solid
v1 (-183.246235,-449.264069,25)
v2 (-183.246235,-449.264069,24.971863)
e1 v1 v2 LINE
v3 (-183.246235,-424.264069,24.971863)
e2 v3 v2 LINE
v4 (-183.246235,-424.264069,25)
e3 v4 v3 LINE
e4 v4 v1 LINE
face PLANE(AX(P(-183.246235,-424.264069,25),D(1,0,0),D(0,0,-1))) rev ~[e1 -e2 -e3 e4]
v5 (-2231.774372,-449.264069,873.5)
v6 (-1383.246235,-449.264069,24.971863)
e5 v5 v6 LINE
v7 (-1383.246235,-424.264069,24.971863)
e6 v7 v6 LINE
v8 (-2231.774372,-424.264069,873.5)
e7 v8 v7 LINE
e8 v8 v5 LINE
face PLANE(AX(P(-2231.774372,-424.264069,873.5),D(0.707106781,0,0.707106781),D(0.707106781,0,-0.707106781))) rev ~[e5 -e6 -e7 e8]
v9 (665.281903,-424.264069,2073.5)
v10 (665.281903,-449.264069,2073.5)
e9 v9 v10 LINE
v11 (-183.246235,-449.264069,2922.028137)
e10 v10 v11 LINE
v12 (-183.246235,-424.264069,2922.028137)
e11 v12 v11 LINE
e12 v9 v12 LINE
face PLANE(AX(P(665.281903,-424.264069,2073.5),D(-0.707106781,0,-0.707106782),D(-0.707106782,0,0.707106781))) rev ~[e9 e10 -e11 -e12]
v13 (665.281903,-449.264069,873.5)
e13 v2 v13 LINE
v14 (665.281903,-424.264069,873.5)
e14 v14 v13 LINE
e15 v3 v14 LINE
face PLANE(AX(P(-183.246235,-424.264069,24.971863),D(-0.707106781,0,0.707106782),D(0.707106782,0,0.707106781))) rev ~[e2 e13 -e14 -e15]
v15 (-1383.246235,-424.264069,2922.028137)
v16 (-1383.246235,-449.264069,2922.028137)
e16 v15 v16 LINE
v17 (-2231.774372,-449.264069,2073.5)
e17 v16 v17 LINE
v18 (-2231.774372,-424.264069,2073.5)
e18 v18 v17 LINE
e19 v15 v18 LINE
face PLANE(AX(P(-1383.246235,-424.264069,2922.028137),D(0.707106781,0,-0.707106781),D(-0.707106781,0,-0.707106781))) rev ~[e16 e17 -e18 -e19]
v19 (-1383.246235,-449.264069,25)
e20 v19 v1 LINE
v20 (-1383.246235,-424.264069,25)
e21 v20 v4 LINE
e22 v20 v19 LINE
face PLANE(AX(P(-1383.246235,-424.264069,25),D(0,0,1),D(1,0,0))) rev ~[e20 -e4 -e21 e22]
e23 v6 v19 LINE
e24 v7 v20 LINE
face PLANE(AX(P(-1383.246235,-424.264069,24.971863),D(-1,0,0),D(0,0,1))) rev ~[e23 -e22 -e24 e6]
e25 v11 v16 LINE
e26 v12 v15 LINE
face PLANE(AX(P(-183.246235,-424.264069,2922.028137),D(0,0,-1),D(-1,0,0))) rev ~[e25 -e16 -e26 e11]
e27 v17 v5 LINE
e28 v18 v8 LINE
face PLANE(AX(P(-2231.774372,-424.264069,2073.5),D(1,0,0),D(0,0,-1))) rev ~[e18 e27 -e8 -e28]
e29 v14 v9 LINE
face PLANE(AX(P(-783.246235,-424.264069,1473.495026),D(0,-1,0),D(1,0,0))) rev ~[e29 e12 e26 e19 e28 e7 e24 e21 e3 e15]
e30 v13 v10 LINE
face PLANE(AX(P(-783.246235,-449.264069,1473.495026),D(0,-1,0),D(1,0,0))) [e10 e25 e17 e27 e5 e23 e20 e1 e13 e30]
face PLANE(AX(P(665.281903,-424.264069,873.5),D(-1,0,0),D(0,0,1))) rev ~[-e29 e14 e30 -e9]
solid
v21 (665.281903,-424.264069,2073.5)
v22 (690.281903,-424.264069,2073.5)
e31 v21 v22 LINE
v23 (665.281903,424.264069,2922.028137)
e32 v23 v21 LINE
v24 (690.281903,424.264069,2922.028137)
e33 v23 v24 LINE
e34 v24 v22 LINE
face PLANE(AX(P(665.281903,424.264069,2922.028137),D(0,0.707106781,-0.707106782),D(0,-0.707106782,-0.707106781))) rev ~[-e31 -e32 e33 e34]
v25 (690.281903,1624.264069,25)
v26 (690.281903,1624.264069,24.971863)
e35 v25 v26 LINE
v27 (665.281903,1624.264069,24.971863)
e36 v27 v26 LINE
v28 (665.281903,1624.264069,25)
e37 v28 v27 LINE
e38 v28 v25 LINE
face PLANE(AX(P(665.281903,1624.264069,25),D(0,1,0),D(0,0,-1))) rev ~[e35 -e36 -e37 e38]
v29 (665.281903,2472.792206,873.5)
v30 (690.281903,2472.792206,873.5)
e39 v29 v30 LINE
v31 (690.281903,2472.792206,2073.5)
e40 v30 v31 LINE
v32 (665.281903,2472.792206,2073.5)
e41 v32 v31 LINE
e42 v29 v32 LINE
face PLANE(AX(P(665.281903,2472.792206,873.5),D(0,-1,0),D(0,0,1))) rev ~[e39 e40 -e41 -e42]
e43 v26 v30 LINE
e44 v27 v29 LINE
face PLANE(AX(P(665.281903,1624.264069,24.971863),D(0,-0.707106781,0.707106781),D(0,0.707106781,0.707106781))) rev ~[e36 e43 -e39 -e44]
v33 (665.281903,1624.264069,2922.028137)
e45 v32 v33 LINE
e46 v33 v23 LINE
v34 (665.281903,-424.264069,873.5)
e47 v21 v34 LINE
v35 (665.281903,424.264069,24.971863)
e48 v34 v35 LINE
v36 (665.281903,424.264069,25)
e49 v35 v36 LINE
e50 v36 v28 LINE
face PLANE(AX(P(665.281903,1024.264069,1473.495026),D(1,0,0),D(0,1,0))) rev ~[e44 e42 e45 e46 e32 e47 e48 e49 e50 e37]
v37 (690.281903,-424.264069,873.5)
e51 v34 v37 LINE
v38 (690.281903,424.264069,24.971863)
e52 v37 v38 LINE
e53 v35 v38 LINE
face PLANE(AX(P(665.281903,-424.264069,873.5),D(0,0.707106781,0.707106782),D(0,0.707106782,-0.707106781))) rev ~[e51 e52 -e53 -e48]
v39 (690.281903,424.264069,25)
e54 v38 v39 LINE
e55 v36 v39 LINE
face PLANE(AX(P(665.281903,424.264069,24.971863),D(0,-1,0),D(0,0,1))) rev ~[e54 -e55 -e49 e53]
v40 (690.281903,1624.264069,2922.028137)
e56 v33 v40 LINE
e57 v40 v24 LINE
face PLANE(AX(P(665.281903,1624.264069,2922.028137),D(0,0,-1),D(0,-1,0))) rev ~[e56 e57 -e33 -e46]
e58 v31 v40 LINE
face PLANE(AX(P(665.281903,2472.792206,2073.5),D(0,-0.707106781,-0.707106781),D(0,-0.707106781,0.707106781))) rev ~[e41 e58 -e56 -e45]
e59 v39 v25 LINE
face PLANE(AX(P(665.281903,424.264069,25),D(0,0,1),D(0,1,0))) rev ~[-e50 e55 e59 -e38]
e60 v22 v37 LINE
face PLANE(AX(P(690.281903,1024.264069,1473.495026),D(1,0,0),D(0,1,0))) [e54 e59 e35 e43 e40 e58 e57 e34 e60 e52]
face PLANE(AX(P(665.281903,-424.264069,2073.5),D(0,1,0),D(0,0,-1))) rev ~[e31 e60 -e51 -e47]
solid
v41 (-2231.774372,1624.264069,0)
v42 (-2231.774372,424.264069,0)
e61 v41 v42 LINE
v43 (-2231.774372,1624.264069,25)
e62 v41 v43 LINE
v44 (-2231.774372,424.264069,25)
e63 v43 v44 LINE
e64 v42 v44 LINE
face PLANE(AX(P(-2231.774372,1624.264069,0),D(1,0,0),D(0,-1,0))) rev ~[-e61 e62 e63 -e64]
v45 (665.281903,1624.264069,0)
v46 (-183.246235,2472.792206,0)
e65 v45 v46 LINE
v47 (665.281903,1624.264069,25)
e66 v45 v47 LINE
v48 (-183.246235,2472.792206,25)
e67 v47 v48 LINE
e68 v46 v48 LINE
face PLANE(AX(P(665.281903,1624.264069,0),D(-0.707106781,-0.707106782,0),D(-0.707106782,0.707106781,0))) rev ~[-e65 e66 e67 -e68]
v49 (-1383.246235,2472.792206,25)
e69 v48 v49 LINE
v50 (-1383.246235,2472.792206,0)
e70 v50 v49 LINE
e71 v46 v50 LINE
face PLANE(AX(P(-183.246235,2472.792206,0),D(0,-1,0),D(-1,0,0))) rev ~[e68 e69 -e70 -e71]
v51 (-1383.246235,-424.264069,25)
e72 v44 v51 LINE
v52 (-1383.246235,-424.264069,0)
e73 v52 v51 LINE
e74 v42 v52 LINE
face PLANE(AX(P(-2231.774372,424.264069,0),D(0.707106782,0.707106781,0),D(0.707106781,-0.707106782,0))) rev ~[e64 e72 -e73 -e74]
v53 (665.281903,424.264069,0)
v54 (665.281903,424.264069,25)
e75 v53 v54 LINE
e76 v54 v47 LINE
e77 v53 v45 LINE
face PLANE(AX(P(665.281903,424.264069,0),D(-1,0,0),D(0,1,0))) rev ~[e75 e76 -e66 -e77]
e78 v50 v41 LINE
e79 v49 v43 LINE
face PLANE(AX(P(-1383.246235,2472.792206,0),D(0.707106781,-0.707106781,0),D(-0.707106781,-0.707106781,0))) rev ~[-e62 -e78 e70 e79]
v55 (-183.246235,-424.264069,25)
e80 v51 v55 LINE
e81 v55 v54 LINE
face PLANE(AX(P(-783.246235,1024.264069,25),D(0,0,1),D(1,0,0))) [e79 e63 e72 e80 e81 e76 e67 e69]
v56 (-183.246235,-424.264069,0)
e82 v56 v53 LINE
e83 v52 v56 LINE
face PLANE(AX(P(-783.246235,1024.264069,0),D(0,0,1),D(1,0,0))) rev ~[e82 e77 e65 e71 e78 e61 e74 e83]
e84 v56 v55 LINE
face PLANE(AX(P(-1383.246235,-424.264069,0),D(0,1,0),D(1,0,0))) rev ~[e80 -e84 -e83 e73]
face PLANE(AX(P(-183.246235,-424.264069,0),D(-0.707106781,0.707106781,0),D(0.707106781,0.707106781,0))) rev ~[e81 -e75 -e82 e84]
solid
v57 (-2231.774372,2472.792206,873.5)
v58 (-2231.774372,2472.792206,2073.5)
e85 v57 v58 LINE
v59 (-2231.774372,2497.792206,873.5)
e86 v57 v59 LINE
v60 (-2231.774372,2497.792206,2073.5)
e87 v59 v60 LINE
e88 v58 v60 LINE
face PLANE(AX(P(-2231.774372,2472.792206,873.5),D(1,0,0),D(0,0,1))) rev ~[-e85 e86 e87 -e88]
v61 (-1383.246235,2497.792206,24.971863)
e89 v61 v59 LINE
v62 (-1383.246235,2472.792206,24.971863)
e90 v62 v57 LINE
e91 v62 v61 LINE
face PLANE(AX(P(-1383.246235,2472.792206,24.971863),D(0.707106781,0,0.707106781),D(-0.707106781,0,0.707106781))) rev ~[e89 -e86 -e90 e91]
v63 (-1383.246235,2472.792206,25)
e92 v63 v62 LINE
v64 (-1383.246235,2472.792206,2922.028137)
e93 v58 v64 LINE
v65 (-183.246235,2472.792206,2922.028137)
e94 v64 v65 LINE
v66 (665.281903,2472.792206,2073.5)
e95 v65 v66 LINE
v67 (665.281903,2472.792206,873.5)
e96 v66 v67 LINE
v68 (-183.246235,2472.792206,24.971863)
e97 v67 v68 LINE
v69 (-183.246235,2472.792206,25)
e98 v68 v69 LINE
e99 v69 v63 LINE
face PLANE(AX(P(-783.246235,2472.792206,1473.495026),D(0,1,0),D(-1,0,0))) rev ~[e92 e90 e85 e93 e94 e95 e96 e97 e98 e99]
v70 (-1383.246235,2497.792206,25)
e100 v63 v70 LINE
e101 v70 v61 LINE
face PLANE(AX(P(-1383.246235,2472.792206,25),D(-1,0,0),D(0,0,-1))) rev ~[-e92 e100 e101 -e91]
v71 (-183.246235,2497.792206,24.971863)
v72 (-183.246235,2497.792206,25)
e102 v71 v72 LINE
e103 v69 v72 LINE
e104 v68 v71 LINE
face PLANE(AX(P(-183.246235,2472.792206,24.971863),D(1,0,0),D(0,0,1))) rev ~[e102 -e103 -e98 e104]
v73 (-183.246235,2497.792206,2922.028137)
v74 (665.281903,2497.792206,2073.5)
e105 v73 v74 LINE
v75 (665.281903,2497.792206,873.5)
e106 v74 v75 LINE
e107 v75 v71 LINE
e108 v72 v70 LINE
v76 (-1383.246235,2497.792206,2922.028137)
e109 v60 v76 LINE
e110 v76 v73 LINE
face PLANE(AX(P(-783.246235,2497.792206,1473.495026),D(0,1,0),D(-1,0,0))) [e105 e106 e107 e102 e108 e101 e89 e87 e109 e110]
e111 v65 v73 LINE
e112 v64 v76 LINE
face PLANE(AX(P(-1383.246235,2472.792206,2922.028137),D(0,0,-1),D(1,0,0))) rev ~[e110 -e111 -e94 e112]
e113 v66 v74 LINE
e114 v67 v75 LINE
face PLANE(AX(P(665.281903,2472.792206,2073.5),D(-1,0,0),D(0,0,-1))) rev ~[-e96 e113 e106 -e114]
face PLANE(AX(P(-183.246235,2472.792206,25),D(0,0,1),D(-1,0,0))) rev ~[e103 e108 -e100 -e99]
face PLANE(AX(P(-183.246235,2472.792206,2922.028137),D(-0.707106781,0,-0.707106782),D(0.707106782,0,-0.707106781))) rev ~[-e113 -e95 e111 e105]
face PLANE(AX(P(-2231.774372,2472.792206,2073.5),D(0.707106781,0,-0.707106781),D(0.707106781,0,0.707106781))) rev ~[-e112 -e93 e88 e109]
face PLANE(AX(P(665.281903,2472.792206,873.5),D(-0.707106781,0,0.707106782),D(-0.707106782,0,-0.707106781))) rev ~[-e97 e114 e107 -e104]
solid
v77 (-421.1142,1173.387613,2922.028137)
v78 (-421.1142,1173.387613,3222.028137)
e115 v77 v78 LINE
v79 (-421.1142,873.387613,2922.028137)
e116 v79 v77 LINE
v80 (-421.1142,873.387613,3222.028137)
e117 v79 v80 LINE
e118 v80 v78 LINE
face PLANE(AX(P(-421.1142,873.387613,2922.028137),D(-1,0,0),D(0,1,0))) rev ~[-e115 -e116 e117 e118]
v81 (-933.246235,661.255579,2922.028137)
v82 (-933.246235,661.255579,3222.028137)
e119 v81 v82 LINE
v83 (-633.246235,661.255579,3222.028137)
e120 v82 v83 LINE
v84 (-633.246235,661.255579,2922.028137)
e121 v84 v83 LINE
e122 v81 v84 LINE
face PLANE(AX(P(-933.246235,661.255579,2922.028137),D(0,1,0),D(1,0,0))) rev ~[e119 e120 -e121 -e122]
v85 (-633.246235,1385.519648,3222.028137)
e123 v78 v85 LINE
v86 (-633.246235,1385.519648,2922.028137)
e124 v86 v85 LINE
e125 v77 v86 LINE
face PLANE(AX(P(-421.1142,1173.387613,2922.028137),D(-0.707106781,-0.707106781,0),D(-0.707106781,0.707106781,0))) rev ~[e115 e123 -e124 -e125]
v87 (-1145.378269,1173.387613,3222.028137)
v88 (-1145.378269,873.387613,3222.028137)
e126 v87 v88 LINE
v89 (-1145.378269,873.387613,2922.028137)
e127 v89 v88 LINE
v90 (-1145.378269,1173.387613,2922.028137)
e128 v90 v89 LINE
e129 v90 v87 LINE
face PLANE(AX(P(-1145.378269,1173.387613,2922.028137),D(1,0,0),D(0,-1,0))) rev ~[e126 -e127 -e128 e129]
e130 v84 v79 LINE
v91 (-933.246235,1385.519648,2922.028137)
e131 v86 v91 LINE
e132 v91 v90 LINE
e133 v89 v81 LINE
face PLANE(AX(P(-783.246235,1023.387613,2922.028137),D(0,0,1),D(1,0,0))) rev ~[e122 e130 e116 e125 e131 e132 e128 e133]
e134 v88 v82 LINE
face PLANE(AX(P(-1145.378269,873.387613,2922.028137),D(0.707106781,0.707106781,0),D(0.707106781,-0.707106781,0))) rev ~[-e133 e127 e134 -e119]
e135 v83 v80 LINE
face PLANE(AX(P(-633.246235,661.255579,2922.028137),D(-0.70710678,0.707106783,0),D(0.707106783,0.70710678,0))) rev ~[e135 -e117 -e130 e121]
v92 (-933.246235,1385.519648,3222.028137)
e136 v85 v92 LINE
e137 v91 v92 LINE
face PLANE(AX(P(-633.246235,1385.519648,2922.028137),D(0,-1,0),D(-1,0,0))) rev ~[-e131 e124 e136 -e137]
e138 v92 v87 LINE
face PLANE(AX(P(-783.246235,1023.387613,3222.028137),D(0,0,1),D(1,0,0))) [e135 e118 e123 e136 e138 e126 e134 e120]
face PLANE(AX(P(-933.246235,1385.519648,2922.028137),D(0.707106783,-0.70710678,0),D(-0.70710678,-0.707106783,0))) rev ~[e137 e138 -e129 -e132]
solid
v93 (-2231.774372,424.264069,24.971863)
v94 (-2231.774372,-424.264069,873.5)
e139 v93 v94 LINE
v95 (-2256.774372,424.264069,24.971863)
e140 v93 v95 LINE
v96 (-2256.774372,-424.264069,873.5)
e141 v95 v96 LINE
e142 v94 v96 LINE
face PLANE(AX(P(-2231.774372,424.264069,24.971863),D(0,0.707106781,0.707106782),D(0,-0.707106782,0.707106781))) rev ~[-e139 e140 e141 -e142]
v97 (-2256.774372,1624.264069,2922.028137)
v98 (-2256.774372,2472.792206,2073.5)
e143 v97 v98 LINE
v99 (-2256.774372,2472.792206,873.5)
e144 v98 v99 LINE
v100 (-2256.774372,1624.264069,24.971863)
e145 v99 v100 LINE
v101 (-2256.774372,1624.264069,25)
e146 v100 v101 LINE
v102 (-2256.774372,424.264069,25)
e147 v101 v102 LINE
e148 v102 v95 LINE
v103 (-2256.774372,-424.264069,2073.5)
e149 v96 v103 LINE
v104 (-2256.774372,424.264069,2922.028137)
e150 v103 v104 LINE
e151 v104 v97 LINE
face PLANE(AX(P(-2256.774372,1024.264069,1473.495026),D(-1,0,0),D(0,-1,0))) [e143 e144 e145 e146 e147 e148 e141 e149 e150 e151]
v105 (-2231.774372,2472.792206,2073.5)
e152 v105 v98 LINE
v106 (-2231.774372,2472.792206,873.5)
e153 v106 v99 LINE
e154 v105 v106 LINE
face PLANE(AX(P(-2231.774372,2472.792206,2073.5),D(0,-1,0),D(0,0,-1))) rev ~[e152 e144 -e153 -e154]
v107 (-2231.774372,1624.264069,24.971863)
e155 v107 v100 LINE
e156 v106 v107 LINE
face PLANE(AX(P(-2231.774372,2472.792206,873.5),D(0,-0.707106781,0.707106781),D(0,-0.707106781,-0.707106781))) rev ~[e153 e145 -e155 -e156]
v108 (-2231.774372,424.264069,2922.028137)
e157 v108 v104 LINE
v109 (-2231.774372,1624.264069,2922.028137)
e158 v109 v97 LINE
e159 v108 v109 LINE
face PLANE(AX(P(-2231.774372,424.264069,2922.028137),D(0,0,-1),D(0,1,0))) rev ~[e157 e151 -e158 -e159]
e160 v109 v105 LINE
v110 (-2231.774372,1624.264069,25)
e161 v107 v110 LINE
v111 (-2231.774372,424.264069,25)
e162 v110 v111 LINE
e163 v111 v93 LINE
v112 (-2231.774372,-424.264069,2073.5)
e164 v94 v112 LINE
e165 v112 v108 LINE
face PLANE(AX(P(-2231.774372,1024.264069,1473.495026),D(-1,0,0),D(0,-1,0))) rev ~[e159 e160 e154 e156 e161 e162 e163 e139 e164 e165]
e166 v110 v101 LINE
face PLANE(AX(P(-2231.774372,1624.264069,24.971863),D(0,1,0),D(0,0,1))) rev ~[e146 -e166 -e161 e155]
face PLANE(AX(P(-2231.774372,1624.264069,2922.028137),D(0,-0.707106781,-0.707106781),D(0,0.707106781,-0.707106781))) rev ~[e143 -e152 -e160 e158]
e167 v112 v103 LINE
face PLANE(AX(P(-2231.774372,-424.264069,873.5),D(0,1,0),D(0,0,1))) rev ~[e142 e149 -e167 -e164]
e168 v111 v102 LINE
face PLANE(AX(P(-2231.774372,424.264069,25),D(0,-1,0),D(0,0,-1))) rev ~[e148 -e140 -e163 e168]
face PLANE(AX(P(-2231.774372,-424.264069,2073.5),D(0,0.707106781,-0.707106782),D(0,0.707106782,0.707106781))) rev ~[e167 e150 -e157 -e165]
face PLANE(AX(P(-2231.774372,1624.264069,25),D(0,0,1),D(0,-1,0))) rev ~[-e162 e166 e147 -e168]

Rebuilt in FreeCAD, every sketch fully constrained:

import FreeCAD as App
import Part
import Sketcher

V = App.Vector


def add_polygon(sketch, points):
    """Adds a closed chain of lines whose ends are joined by coincident constraints."""
    first, n = sketch.GeometryCount, len(points)
    for a, b in zip(points, points[1:] + points[:1]):
        sketch.addGeometry(Part.LineSegment(App.Vector(*a, 0), App.Vector(*b, 0)), False)
    for i in range(n):
        sketch.addConstraint(Sketcher.Constraint("Coincident", first + i, 2, first + (i + 1) % n, 1))

doc = App.newDocument("Part")
body = doc.addObject("PartDesign::Body", "Body")

sketch1 = body.newObject("Sketcher::SketchObject", "Sketch")
sketch1.AttachmentSupport = (doc.getObject("XY_Plane"), [""])
sketch1.MapMode = "FlatFace"
add_polygon(sketch1, [(-183, -424), (665, 424), (665, 1624), (-183, 2473), (-1383, 2473), (-2232, 1624), (-2232, 424), (-1383, -424)])
sketch1.addConstraint([
    Sketcher.Constraint("Vertical", 1),
    Sketcher.Constraint("Horizontal", 3),
    Sketcher.Constraint("Vertical", 5),
    Sketcher.Constraint("Horizontal", 7),
    Sketcher.Constraint("Perpendicular", 0, 2),
    Sketcher.Constraint("Perpendicular", 2, 4),
    Sketcher.Constraint("Perpendicular", 4, 6),
    Sketcher.Constraint("Horizontal", 1, 2, 4, 2),
    Sketcher.Constraint("Horizontal", 0, 2, 5, 2),
    Sketcher.Constraint("Vertical", 3, 2, 6, 2),
    Sketcher.Constraint("Vertical", 2, 2, 7, 2),
    Sketcher.Constraint("Equal", 7, 1),
    Sketcher.Constraint("DistanceX", 3, 2, 3, 1, 1200.0),
    Sketcher.Constraint("Distance", 0, 1200.000001),
    Sketcher.Constraint("DistanceY", -1, 1, 0, 2, 424.264069),
    Sketcher.Constraint("DistanceX", 4, 2, -1, 1, 2231.774372),
])
pad1 = body.newObject("PartDesign::Pad", "Pad")
pad1.Profile = sketch1
pad1.Length = 25
body2 = doc.addObject("PartDesign::Body", "Body001")

sketch2 = body2.newObject("Sketcher::SketchObject", "Sketch001")
sketch2.AttachmentSupport = (doc.getObject("XZ_Plane001"), [""])
sketch2.MapMode = "FlatFace"
sketch2.AttachmentOffset = App.Placement(V(0, 0, 424.264069), App.Rotation())
add_polygon(sketch2, [(-183.246, 25), (-183.246, 24.972), (665.282, 873.5), (665.282, 2073.5), (-183.246, 2922.028), (-1383.246, 2922.028), (-2231.774, 2073.5), (-2231.774, 873.5), (-1383.246, 24.972), (-1383.246, 25)])
sketch2.addConstraint([
    Sketcher.Constraint("Vertical", 0),
    Sketcher.Constraint("Vertical", 2),
    Sketcher.Constraint("Horizontal", 4),
    Sketcher.Constraint("Vertical", 6),
    Sketcher.Constraint("Vertical", 8),
    Sketcher.Constraint("Horizontal", 9),
    Sketcher.Constraint("Perpendicular", 1, 3),
    Sketcher.Constraint("Perpendicular", 3, 5),
    Sketcher.Constraint("Perpendicular", 5, 7),
    Sketcher.Constraint("Horizontal", 2, 2, 5, 2),
    Sketcher.Constraint("Horizontal", 1, 2, 6, 2),
    Sketcher.Constraint("Horizontal", 0, 2, 7, 2),
    Sketcher.Constraint("Vertical", 0, 2, 3, 2),
    Sketcher.Constraint("Vertical", 4, 2, 7, 2),
    Sketcher.Constraint("Equal", 9, 2),
    Sketcher.Constraint("DistanceX", 4, 2, 4, 1, 1200.0),
    Sketcher.Constraint("Distance", 1, 1200.0),
    Sketcher.Constraint("DistanceY", -1, 1, 8, 2, 25.0),
    Sketcher.Constraint("DistanceY", -1, 1, 1, 2, 873.5),
    Sketcher.Constraint("DistanceX", 5, 2, -1, 1, 2231.774372),
])
pad2 = body2.newObject("PartDesign::Pad", "Pad001")
pad2.Profile = sketch2
pad2.Length = 25
body3 = doc.addObject("PartDesign::Body", "Body002")

sketch3 = body3.newObject("Sketcher::SketchObject", "Sketch002")
sketch3.AttachmentSupport = (doc.getObject("XZ_Plane002"), [""])
sketch3.MapMode = "FlatFace"
sketch3.AttachmentOffset = App.Placement(V(0, 0, -2472.792206), App.Rotation())
add_polygon(sketch3, [(-1383.246, 24.972), (-2231.774, 873.5), (-2231.774, 2073.5), (-1383.246, 2922.028), (-183.246, 2922.028), (665.282, 2073.5), (665.282, 873.5), (-183.246, 24.972), (-183.246, 25), (-1383.246, 25)])
sketch3.addConstraint([
    Sketcher.Constraint("Vertical", 1),
    Sketcher.Constraint("Horizontal", 3),
    Sketcher.Constraint("Vertical", 5),
    Sketcher.Constraint("Vertical", 7),
    Sketcher.Constraint("Horizontal", 8),
    Sketcher.Constraint("Vertical", 9),
    Sketcher.Constraint("Perpendicular", 0, 2),
    Sketcher.Constraint("Perpendicular", 2, 4),
    Sketcher.Constraint("Perpendicular", 4, 6),
    Sketcher.Constraint("Horizontal", 1, 2, 4, 2),
    Sketcher.Constraint("Horizontal", 0, 2, 5, 2),
    Sketcher.Constraint("Horizontal", 6, 2, 9, 2),
    Sketcher.Constraint("Vertical", 3, 2, 6, 2),
    Sketcher.Constraint("Vertical", 2, 2, 8, 2),
    Sketcher.Constraint("Equal", 8, 1),
    Sketcher.Constraint("DistanceX", 3, 1, 3, 2, 1200.0),
    Sketcher.Constraint("Distance", 0, 1199.999999),
    Sketcher.Constraint("DistanceY", -1, 1, 7, 2, 25.0),
    Sketcher.Constraint("DistanceY", -1, 1, 0, 2, 873.5),
    Sketcher.Constraint("DistanceX", 0, 2, -1, 1, 2231.774372),
])
pad3 = body3.newObject("PartDesign::Pad", "Pad002")
pad3.Profile = sketch3
pad3.Length = 25
pad3.Reversed = True
body4 = doc.addObject("PartDesign::Body", "Body003")

sketch4 = body4.newObject("Sketcher::SketchObject", "Sketch003")
sketch4.AttachmentSupport = (doc.getObject("YZ_Plane003"), [""])
sketch4.MapMode = "FlatFace"
sketch4.AttachmentOffset = App.Placement(V(0, 0, 665.281903), App.Rotation())
add_polygon(sketch4, [(1624.264, 25), (1624.264, 24.972), (2472.792, 873.5), (2472.792, 2073.5), (1624.264, 2922.028), (424.264, 2922.028), (-424.264, 2073.5), (-424.264, 873.5), (424.264, 24.972), (424.264, 25)])
sketch4.addConstraint([
    Sketcher.Constraint("Vertical", 0),
    Sketcher.Constraint("Vertical", 2),
    Sketcher.Constraint("Horizontal", 4),
    Sketcher.Constraint("Vertical", 6),
    Sketcher.Constraint("Vertical", 8),
    Sketcher.Constraint("Horizontal", 9),
    Sketcher.Constraint("Perpendicular", 1, 3),
    Sketcher.Constraint("Perpendicular", 3, 5),
    Sketcher.Constraint("Perpendicular", 5, 7),
    Sketcher.Constraint("Horizontal", 2, 2, 5, 2),
    Sketcher.Constraint("Horizontal", 1, 2, 6, 2),
    Sketcher.Constraint("Horizontal", 0, 2, 7, 2),
    Sketcher.Constraint("Vertical", 0, 2, 3, 2),
    Sketcher.Constraint("Vertical", 4, 2, 7, 2),
    Sketcher.Constraint("Equal", 9, 2),
    Sketcher.Constraint("DistanceX", 4, 2, 4, 1, 1200.0),
    Sketcher.Constraint("Distance", 1, 1199.999999),
    Sketcher.Constraint("DistanceY", -1, 1, 8, 2, 25.0),
    Sketcher.Constraint("DistanceY", -1, 1, 1, 2, 873.5),
    Sketcher.Constraint("DistanceX", -1, 1, 0, 2, 1624.264069),
])
pad4 = body4.newObject("PartDesign::Pad", "Pad003")
pad4.Profile = sketch4
pad4.Length = 25
body5 = doc.addObject("PartDesign::Body", "Body004")

sketch5 = body5.newObject("Sketcher::SketchObject", "Sketch004")
sketch5.AttachmentSupport = (doc.getObject("YZ_Plane004"), [""])
sketch5.MapMode = "FlatFace"
sketch5.AttachmentOffset = App.Placement(V(0, 0, -2231.774372), App.Rotation())
add_polygon(sketch5, [(424.264, 25), (424.264, 24.972), (-424.264, 873.5), (-424.264, 2073.5), (424.264, 2922.028), (1624.264, 2922.028), (2472.792, 2073.5), (2472.792, 873.5), (1624.264, 24.972), (1624.264, 25)])
sketch5.addConstraint([
    Sketcher.Constraint("Vertical", 0),
    Sketcher.Constraint("Vertical", 2),
    Sketcher.Constraint("Horizontal", 4),
    Sketcher.Constraint("Vertical", 6),
    Sketcher.Constraint("Vertical", 8),
    Sketcher.Constraint("Horizontal", 9),
    Sketcher.Constraint("Perpendicular", 1, 3),
    Sketcher.Constraint("Perpendicular", 3, 5),
    Sketcher.Constraint("Perpendicular", 5, 7),
    Sketcher.Constraint("Horizontal", 2, 2, 5, 2),
    Sketcher.Constraint("Horizontal", 1, 2, 6, 2),
    Sketcher.Constraint("Horizontal", 0, 2, 7, 2),
    Sketcher.Constraint("Vertical", 0, 2, 3, 2),
    Sketcher.Constraint("Vertical", 4, 2, 7, 2),
    Sketcher.Constraint("Equal", 9, 2),
    Sketcher.Constraint("DistanceX", 4, 1, 4, 2, 1200.0),
    Sketcher.Constraint("Distance", 1, 1200.0),
    Sketcher.Constraint("DistanceY", -1, 1, 8, 2, 25.0),
    Sketcher.Constraint("DistanceY", -1, 1, 1, 2, 873.5),
    Sketcher.Constraint("DistanceX", -1, 1, 0, 2, 424.264069),
])
pad5 = body5.newObject("PartDesign::Pad", "Pad004")
pad5.Profile = sketch5
pad5.Length = 25
pad5.Reversed = True
body6 = doc.addObject("PartDesign::Body", "Body005")

sketch6 = body6.newObject("Sketcher::SketchObject", "Sketch005")
sketch6.AttachmentSupport = (doc.getObject("XY_Plane005"), [""])
sketch6.MapMode = "FlatFace"
sketch6.AttachmentOffset = App.Placement(V(0, 0, 2922.028137), App.Rotation())
add_polygon(sketch6, [(-933, 661), (-633, 661), (-421, 873), (-421, 1173), (-633, 1386), (-933, 1386), (-1145, 1173), (-1145, 873)])
sketch6.addConstraint([
    Sketcher.Constraint("Horizontal", 0),
    Sketcher.Constraint("Vertical", 2),
    Sketcher.Constraint("Horizontal", 4),
    Sketcher.Constraint("Vertical", 6),
    Sketcher.Constraint("Perpendicular", 1, 3),
    Sketcher.Constraint("Perpendicular", 3, 5),
    Sketcher.Constraint("Perpendicular", 5, 7),
    Sketcher.Constraint("Horizontal", 2, 2, 5, 2),
    Sketcher.Constraint("Horizontal", 1, 2, 6, 2),
    Sketcher.Constraint("Vertical", 0, 2, 3, 2),
    Sketcher.Constraint("Vertical", 4, 2, 7, 2),
    Sketcher.Constraint("Equal", 4, 2),
    Sketcher.Constraint("DistanceX", 0, 1, 0, 2, 300.0),
    Sketcher.Constraint("Distance", 1, 300.0),
    Sketcher.Constraint("DistanceX", 1, 2, -1, 1, 421.1142),
    Sketcher.Constraint("DistanceY", -1, 1, 0, 2, 661.255579),
])
pad6 = body6.newObject("PartDesign::Pad", "Pad005")
pad6.Profile = sketch6
pad6.Length = 300

doc.recompute()
